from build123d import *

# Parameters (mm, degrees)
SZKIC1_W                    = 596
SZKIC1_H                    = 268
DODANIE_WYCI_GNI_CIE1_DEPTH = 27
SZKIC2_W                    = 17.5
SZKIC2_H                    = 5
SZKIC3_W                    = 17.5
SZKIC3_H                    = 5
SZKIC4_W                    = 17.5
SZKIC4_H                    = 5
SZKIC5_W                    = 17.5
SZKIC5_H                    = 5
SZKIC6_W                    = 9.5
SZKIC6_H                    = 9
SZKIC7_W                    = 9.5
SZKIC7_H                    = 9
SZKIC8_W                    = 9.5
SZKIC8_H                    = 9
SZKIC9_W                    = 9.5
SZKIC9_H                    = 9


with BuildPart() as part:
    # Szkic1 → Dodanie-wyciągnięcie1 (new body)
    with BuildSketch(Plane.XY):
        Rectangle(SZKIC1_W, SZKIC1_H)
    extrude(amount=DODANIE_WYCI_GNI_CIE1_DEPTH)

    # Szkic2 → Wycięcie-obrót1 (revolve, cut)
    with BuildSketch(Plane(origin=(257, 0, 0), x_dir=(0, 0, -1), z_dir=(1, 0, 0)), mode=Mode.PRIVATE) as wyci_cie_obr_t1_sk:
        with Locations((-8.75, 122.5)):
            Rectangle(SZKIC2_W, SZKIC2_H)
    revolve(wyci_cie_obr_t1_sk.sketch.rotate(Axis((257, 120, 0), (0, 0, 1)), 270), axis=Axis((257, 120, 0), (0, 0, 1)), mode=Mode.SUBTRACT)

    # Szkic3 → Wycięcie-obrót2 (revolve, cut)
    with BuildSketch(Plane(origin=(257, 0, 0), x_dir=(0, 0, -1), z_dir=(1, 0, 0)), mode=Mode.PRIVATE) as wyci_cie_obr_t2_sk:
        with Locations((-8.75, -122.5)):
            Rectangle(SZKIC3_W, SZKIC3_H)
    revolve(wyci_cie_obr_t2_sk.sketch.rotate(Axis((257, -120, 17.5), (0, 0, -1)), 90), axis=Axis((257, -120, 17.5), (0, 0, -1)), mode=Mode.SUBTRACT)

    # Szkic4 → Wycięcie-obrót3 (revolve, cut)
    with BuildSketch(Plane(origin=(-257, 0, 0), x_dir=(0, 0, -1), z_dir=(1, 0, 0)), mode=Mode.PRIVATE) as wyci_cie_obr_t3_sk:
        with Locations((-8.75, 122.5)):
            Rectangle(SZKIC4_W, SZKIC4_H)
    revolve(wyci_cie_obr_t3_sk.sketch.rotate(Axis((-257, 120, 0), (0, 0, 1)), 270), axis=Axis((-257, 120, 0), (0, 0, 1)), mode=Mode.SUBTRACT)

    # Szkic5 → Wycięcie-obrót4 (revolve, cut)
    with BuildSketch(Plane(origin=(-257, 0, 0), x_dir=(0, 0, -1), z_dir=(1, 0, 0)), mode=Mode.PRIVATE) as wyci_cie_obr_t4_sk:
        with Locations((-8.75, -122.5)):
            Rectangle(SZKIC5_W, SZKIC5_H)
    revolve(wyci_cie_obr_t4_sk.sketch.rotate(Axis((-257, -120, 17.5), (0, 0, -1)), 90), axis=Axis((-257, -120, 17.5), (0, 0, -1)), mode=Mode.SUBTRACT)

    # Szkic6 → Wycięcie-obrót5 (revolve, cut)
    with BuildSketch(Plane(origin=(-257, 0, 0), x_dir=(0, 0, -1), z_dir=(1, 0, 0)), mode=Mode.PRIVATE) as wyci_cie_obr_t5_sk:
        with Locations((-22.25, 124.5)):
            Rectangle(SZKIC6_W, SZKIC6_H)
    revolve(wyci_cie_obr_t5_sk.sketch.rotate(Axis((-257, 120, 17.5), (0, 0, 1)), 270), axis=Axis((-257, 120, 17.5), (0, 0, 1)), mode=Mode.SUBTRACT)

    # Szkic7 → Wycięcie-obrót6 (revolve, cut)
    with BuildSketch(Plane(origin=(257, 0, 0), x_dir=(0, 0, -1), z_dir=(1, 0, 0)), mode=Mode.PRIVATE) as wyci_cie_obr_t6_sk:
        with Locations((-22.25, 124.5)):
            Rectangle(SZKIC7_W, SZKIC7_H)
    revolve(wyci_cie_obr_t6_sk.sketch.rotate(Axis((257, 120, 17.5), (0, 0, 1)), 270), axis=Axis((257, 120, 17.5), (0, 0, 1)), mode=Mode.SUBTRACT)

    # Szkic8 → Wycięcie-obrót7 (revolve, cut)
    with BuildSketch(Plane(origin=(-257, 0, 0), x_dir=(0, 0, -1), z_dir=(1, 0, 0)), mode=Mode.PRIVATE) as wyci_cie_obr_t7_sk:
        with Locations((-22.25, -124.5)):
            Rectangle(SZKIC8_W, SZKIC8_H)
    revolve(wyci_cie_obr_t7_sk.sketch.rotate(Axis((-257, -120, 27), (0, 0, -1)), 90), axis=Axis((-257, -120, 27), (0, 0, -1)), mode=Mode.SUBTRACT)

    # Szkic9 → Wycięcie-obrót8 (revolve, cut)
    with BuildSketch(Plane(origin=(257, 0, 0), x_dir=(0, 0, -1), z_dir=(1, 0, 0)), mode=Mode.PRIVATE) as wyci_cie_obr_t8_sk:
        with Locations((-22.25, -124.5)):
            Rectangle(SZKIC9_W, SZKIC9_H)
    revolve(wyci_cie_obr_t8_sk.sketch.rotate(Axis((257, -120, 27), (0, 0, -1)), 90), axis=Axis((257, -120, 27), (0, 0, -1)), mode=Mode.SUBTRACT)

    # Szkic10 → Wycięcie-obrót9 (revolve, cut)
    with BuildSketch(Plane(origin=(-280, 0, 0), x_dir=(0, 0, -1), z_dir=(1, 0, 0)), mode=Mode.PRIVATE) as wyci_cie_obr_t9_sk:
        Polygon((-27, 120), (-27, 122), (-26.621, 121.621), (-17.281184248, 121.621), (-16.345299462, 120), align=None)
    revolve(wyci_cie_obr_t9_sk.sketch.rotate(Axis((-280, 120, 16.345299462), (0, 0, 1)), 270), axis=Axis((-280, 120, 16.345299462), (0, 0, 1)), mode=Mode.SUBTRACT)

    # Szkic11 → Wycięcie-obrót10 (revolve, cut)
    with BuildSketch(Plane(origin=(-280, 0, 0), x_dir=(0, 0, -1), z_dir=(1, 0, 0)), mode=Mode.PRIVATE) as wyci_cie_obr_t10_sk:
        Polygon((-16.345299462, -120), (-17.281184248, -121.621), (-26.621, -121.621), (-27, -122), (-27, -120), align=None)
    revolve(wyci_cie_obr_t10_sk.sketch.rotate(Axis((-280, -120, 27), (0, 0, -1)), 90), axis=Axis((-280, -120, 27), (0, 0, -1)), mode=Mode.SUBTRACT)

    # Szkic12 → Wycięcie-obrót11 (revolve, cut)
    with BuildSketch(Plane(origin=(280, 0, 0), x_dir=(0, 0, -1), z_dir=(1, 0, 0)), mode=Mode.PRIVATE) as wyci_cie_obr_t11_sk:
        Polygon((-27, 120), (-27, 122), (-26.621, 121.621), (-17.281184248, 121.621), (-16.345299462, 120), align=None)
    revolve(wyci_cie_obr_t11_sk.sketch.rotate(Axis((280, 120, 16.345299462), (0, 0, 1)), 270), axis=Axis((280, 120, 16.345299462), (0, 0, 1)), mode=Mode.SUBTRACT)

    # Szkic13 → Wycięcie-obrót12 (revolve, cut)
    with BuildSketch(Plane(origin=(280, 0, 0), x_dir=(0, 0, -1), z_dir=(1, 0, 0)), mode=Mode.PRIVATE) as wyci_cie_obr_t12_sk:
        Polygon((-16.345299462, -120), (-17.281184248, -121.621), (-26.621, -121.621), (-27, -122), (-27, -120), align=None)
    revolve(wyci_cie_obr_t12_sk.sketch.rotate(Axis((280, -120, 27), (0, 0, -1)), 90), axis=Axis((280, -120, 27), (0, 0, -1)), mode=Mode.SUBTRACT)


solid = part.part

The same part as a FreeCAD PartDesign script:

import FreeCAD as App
import Part
import Sketcher

V = App.Vector
Q = App.Units.Quantity


def add_polygon(sketch, points):
    """Adds a closed chain of lines whose ends are joined by coincident constraints."""
    first, n = sketch.GeometryCount, len(points)
    for a, b in zip(points, points[1:] + points[:1]):
        sketch.addGeometry(Part.LineSegment(App.Vector(*a, 0), App.Vector(*b, 0)), False)
    for i in range(n):
        sketch.addConstraint(Sketcher.Constraint("Coincident", first + i, 2, first + (i + 1) % n, 1))

doc = App.newDocument("Part")
body = doc.addObject("PartDesign::Body", "Body")

# Sketch on XY plane
sketch1 = doc.addObject("Sketcher::SketchObject", "Sketch")
body.addObject(sketch1)
sketch1.AttachmentSupport = (doc.XY_Plane, [""])
sketch1.MapMode = "FlatFace"
add_polygon(sketch1, [(-298, 134), (-298, -134), (298, -134), (298, 134)])  # lines 0-3
sketch1.addConstraint(Sketcher.Constraint("Vertical", 0))
sketch1.addConstraint(Sketcher.Constraint("Horizontal", 1))
sketch1.addConstraint(Sketcher.Constraint("Vertical", 2))
sketch1.addConstraint(Sketcher.Constraint("Horizontal", 3))
sketch1.addConstraint(Sketcher.Constraint("Symmetric", 0, 2, 2, 2, -1, 1))
sketch1.addConstraint(Sketcher.Constraint("DistanceX", 1, 1, 1, 2, Q("596 mm")))
sketch1.addConstraint(Sketcher.Constraint("DistanceY", 0, 2, 0, 1, Q("268 mm")))
pad1 = doc.addObject("PartDesign::Pad", "Pad")
body.addObject(pad1)
pad1.Profile = sketch1
pad1.Length = 27

# Sketch on YZ plane
sketch2 = doc.addObject("Sketcher::SketchObject", "Sketch001")
body.addObject(sketch2)
sketch2.AttachmentSupport = (doc.YZ_Plane, [""])
sketch2.MapMode = "FlatFace"
sketch2.AttachmentOffset = App.Placement(V(0, 0, 257), App.Rotation())
add_polygon(sketch2, [(125, 18), (120, 18), (120, 0), (125, 0)])  # lines 0-3
sketch2.addGeometry(Part.LineSegment(V(120, 0, 0), V(120, 18, 0)), True)  # axis
sketch2.addConstraint(Sketcher.Constraint("Horizontal", 0))
sketch2.addConstraint(Sketcher.Constraint("Vertical", 1))
sketch2.addConstraint(Sketcher.Constraint("Horizontal", 2))
sketch2.addConstraint(Sketcher.Constraint("Vertical", 3))
sketch2.addConstraint(Sketcher.Constraint("Vertical", 4))
sketch2.addConstraint(Sketcher.Constraint("Coincident", 4, 1, 1, 2))
sketch2.addConstraint(Sketcher.Constraint("PointOnObject", 1, 2, -1))
sketch2.addConstraint(Sketcher.Constraint("Horizontal", 3, 2, 4, 2))
sketch2.addConstraint(Sketcher.Constraint("DistanceX", 0, 2, 0, 1, Q("5 mm")))
sketch2.addConstraint(Sketcher.Constraint("DistanceY", 1, 2, 1, 1, Q("17.5 mm")))
sketch2.addConstraint(Sketcher.Constraint("DistanceX", -1, 1, 0, 2, Q("120 mm")))
groove = doc.addObject("PartDesign::Groove", "Groove")
body.addObject(groove)
groove.Profile = sketch2
groove.ReferenceAxis = (sketch2, ["Axis0"])
groove.Angle = 360

# Sketch on YZ plane
sketch3 = doc.addObject("Sketcher::SketchObject", "Sketch002")
body.addObject(sketch3)
sketch3.AttachmentSupport = (doc.YZ_Plane, [""])
sketch3.MapMode = "FlatFace"
sketch3.AttachmentOffset = App.Placement(V(0, 0, 257), App.Rotation())
add_polygon(sketch3, [(-120, 18), (-125, 18), (-125, 0), (-120, 0)])  # lines 0-3
sketch3.addGeometry(Part.LineSegment(V(-120, 18, 0), V(-120, 0, 0)), True)  # axis
sketch3.addConstraint(Sketcher.Constraint("Horizontal", 0))
sketch3.addConstraint(Sketcher.Constraint("Vertical", 1))
sketch3.addConstraint(Sketcher.Constraint("Horizontal", 2))
sketch3.addConstraint(Sketcher.Constraint("Vertical", 3))
sketch3.addConstraint(Sketcher.Constraint("Vertical", 4))
sketch3.addConstraint(Sketcher.Constraint("Coincident", 4, 1, 3, 2))
sketch3.addConstraint(Sketcher.Constraint("PointOnObject", 1, 2, -1))
sketch3.addConstraint(Sketcher.Constraint("PointOnObject", 4, 2, -1))
sketch3.addConstraint(Sketcher.Constraint("DistanceX", 0, 2, 0, 1, Q("5 mm")))
sketch3.addConstraint(Sketcher.Constraint("DistanceY", 1, 2, 1, 1, Q("17.5 mm")))
sketch3.addConstraint(Sketcher.Constraint("DistanceX", 0, 2, -1, 1, Q("125 mm")))
groove2 = doc.addObject("PartDesign::Groove", "Groove001")
body.addObject(groove2)
groove2.Profile = sketch3
groove2.ReferenceAxis = (sketch3, ["Axis0"])
groove2.Angle = 360

# Sketch on YZ plane
sketch4 = doc.addObject("Sketcher::SketchObject", "Sketch003")
body.addObject(sketch4)
sketch4.AttachmentSupport = (doc.YZ_Plane, [""])
sketch4.MapMode = "FlatFace"
sketch4.AttachmentOffset = App.Placement(V(0, 0, -257), App.Rotation())
add_polygon(sketch4, [(125, 18), (120, 18), (120, 0), (125, 0)])  # lines 0-3
sketch4.addGeometry(Part.LineSegment(V(120, 0, 0), V(120, 18, 0)), True)  # axis
sketch4.addConstraint(Sketcher.Constraint("Horizontal", 0))
sketch4.addConstraint(Sketcher.Constraint("Vertical", 1))
sketch4.addConstraint(Sketcher.Constraint("Horizontal", 2))
sketch4.addConstraint(Sketcher.Constraint("Vertical", 3))
sketch4.addConstraint(Sketcher.Constraint("Vertical", 4))
sketch4.addConstraint(Sketcher.Constraint("Coincident", 4, 1, 1, 2))
sketch4.addConstraint(Sketcher.Constraint("PointOnObject", 1, 2, -1))
sketch4.addConstraint(Sketcher.Constraint("Horizontal", 3, 2, 4, 2))
sketch4.addConstraint(Sketcher.Constraint("DistanceX", 0, 2, 0, 1, Q("5 mm")))
sketch4.addConstraint(Sketcher.Constraint("DistanceY", 1, 2, 1, 1, Q("17.5 mm")))
sketch4.addConstraint(Sketcher.Constraint("DistanceX", -1, 1, 0, 2, Q("120 mm")))
groove3 = doc.addObject("PartDesign::Groove", "Groove002")
body.addObject(groove3)
groove3.Profile = sketch4
groove3.ReferenceAxis = (sketch4, ["Axis0"])
groove3.Angle = 360

# Sketch on YZ plane
sketch5 = doc.addObject("Sketcher::SketchObject", "Sketch004")
body.addObject(sketch5)
sketch5.AttachmentSupport = (doc.YZ_Plane, [""])
sketch5.MapMode = "FlatFace"
sketch5.AttachmentOffset = App.Placement(V(0, 0, -257), App.Rotation())
add_polygon(sketch5, [(-120, 18), (-125, 18), (-125, 0), (-120, 0)])  # lines 0-3
sketch5.addGeometry(Part.LineSegment(V(-120, 18, 0), V(-120, 0, 0)), True)  # axis
sketch5.addConstraint(Sketcher.Constraint("Horizontal", 0))
sketch5.addConstraint(Sketcher.Constraint("Vertical", 1))
sketch5.addConstraint(Sketcher.Constraint("Horizontal", 2))
sketch5.addConstraint(Sketcher.Constraint("Vertical", 3))
sketch5.addConstraint(Sketcher.Constraint("Vertical", 4))
sketch5.addConstraint(Sketcher.Constraint("Coincident", 4, 1, 3, 2))
sketch5.addConstraint(Sketcher.Constraint("PointOnObject", 1, 2, -1))
sketch5.addConstraint(Sketcher.Constraint("PointOnObject", 4, 2, -1))
sketch5.addConstraint(Sketcher.Constraint("DistanceX", 0, 2, 0, 1, Q("5 mm")))
sketch5.addConstraint(Sketcher.Constraint("DistanceY", 1, 2, 1, 1, Q("17.5 mm")))
sketch5.addConstraint(Sketcher.Constraint("DistanceX", 0, 2, -1, 1, Q("125 mm")))
groove4 = doc.addObject("PartDesign::Groove", "Groove003")
body.addObject(groove4)
groove4.Profile = sketch5
groove4.ReferenceAxis = (sketch5, ["Axis0"])
groove4.Angle = 360

# Sketch on YZ plane
sketch6 = doc.addObject("Sketcher::SketchObject", "Sketch005")
body.addObject(sketch6)
sketch6.AttachmentSupport = (doc.YZ_Plane, [""])
sketch6.MapMode = "FlatFace"
sketch6.AttachmentOffset = App.Placement(V(0, 0, -257), App.Rotation())
add_polygon(sketch6, [(129, 27), (120, 27), (120, 18), (129, 18)])  # lines 0-3
sketch6.addGeometry(Part.LineSegment(V(120, 18, 0), V(120, 27, 0)), True)  # axis
sketch6.addConstraint(Sketcher.Constraint("Horizontal", 0))
sketch6.addConstraint(Sketcher.Constraint("Vertical", 1))
sketch6.addConstraint(Sketcher.Constraint("Horizontal", 2))
sketch6.addConstraint(Sketcher.Constraint("Vertical", 3))
sketch6.addConstraint(Sketcher.Constraint("Vertical", 4))
sketch6.addConstraint(Sketcher.Constraint("Coincident", 4, 1, 1, 2))
sketch6.addConstraint(Sketcher.Constraint("Horizontal", 3, 2, 4, 2))
sketch6.addConstraint(Sketcher.Constraint("DistanceX", 0, 2, 0, 1, Q("9 mm")))
sketch6.addConstraint(Sketcher.Constraint("DistanceY", 1, 2, 1, 1, Q("9.5 mm")))
sketch6.addConstraint(Sketcher.Constraint("DistanceX", -1, 1, 0, 2, Q("120 mm")))
sketch6.addConstraint(Sketcher.Constraint("DistanceY", -1, 1, 0, 2, Q("27 mm")))
groove5 = doc.addObject("PartDesign::Groove", "Groove004")
body.addObject(groove5)
groove5.Profile = sketch6
groove5.ReferenceAxis = (sketch6, ["Axis0"])
groove5.Angle = 360

# Sketch on YZ plane
sketch7 = doc.addObject("Sketcher::SketchObject", "Sketch006")
body.addObject(sketch7)
sketch7.AttachmentSupport = (doc.YZ_Plane, [""])
sketch7.MapMode = "FlatFace"
sketch7.AttachmentOffset = App.Placement(V(0, 0, 257), App.Rotation())
add_polygon(sketch7, [(129, 27), (120, 27), (120, 18), (129, 18)])  # lines 0-3
sketch7.addGeometry(Part.LineSegment(V(120, 18, 0), V(120, 27, 0)), True)  # axis
sketch7.addConstraint(Sketcher.Constraint("Horizontal", 0))
sketch7.addConstraint(Sketcher.Constraint("Vertical", 1))
sketch7.addConstraint(Sketcher.Constraint("Horizontal", 2))
sketch7.addConstraint(Sketcher.Constraint("Vertical", 3))
sketch7.addConstraint(Sketcher.Constraint("Vertical", 4))
sketch7.addConstraint(Sketcher.Constraint("Coincident", 4, 1, 1, 2))
sketch7.addConstraint(Sketcher.Constraint("Horizontal", 3, 2, 4, 2))
sketch7.addConstraint(Sketcher.Constraint("DistanceX", 0, 2, 0, 1, Q("9 mm")))
sketch7.addConstraint(Sketcher.Constraint("DistanceY", 1, 2, 1, 1, Q("9.5 mm")))
sketch7.addConstraint(Sketcher.Constraint("DistanceX", -1, 1, 0, 2, Q("120 mm")))
sketch7.addConstraint(Sketcher.Constraint("DistanceY", -1, 1, 0, 2, Q("27 mm")))
groove6 = doc.addObject("PartDesign::Groove", "Groove005")
body.addObject(groove6)
groove6.Profile = sketch7
groove6.ReferenceAxis = (sketch7, ["Axis0"])
groove6.Angle = 360

# Sketch on YZ plane
sketch8 = doc.addObject("Sketcher::SketchObject", "Sketch007")
body.addObject(sketch8)
sketch8.AttachmentSupport = (doc.YZ_Plane, [""])
sketch8.MapMode = "FlatFace"
sketch8.AttachmentOffset = App.Placement(V(0, 0, -257), App.Rotation())
add_polygon(sketch8, [(-120, 27), (-129, 27), (-129, 18), (-120, 18)])  # lines 0-3
sketch8.addGeometry(Part.LineSegment(V(-120, 27, 0), V(-120, 18, 0)), True)  # axis
sketch8.addConstraint(Sketcher.Constraint("Horizontal", 0))
sketch8.addConstraint(Sketcher.Constraint("Vertical", 1))
sketch8.addConstraint(Sketcher.Constraint("Horizontal", 2))
sketch8.addConstraint(Sketcher.Constraint("Vertical", 3))
sketch8.addConstraint(Sketcher.Constraint("Vertical", 4))
sketch8.addConstraint(Sketcher.Constraint("Coincident", 4, 1, 3, 2))
sketch8.addConstraint(Sketcher.Constraint("Horizontal", 1, 2, 4, 2))
sketch8.addConstraint(Sketcher.Constraint("DistanceX", 0, 2, 0, 1, Q("9 mm")))
sketch8.addConstraint(Sketcher.Constraint("DistanceY", 1, 2, 1, 1, Q("9.5 mm")))
sketch8.addConstraint(Sketcher.Constraint("DistanceX", 0, 2, -1, 1, Q("129 mm")))
sketch8.addConstraint(Sketcher.Constraint("DistanceY", -1, 1, 0, 2, Q("27 mm")))
groove7 = doc.addObject("PartDesign::Groove", "Groove006")
body.addObject(groove7)
groove7.Profile = sketch8
groove7.ReferenceAxis = (sketch8, ["Axis0"])
groove7.Angle = 360

# Sketch on YZ plane
sketch9 = doc.addObject("Sketcher::SketchObject", "Sketch008")
body.addObject(sketch9)
sketch9.AttachmentSupport = (doc.YZ_Plane, [""])
sketch9.MapMode = "FlatFace"
sketch9.AttachmentOffset = App.Placement(V(0, 0, 257), App.Rotation())
add_polygon(sketch9, [(-120, 27), (-129, 27), (-129, 18), (-120, 18)])  # lines 0-3
sketch9.addGeometry(Part.LineSegment(V(-120, 27, 0), V(-120, 18, 0)), True)  # axis
sketch9.addConstraint(Sketcher.Constraint("Horizontal", 0))
sketch9.addConstraint(Sketcher.Constraint("Vertical", 1))
sketch9.addConstraint(Sketcher.Constraint("Horizontal", 2))
sketch9.addConstraint(Sketcher.Constraint("Vertical", 3))
sketch9.addConstraint(Sketcher.Constraint("Vertical", 4))
sketch9.addConstraint(Sketcher.Constraint("Coincident", 4, 1, 3, 2))
sketch9.addConstraint(Sketcher.Constraint("Horizontal", 1, 2, 4, 2))
sketch9.addConstraint(Sketcher.Constraint("DistanceX", 0, 2, 0, 1, Q("9 mm")))
sketch9.addConstraint(Sketcher.Constraint("DistanceY", 1, 2, 1, 1, Q("9.5 mm")))
sketch9.addConstraint(Sketcher.Constraint("DistanceX", 0, 2, -1, 1, Q("129 mm")))
sketch9.addConstraint(Sketcher.Constraint("DistanceY", -1, 1, 0, 2, Q("27 mm")))
groove8 = doc.addObject("PartDesign::Groove", "Groove007")
body.addObject(groove8)
groove8.Profile = sketch9
groove8.ReferenceAxis = (sketch9, ["Axis0"])
groove8.Angle = 360

# Sketch on YZ plane
sketch10 = doc.addObject("Sketcher::SketchObject", "Sketch009")
body.addObject(sketch10)
sketch10.AttachmentSupport = (doc.YZ_Plane, [""])
sketch10.MapMode = "FlatFace"
sketch10.AttachmentOffset = App.Placement(V(0, 0, -280), App.Rotation())
add_polygon(sketch10, [(122, 27), (120, 27), (120, 16.3), (121.6, 17.3), (121.6, 26.6)])  # lines 0-4
sketch10.addGeometry(Part.LineSegment(V(120, 16.3, 0), V(120, 27, 0)), True)  # axis
sketch10.addConstraint(Sketcher.Constraint("Horizontal", 0))
sketch10.addConstraint(Sketcher.Constraint("Vertical", 1))
sketch10.addConstraint(Sketcher.Constraint("Vertical", 3))
sketch10.addConstraint(Sketcher.Constraint("Vertical", 5))
sketch10.addConstraint(Sketcher.Constraint("Coincident", 5, 1, 1, 2))
sketch10.addConstraint(Sketcher.Constraint("Horizontal", 4, 2, 5, 2))
sketch10.addConstraint(Sketcher.Constraint("DistanceX", 0, 2, 0, 1, Q("2 mm")))
sketch10.addConstraint(Sketcher.Constraint("Angle", 2, Q("30 deg")))
sketch10.addConstraint(Sketcher.Constraint("Angle", 4, Q("45 deg")))
sketch10.addConstraint(Sketcher.Constraint("DistanceX", -1, 1, 0, 2, Q("120 mm")))
sketch10.addConstraint(Sketcher.Constraint("DistanceY", -1, 1, 0, 2, Q("27 mm")))
sketch10.addConstraint(Sketcher.Constraint("DistanceY", 1, 2, 1, 1, Q("10.654701 mm")))
sketch10.addConstraint(Sketcher.Constraint("DistanceX", -1, 1, 2, 2, Q("121.621 mm")))
groove9 = doc.addObject("PartDesign::Groove", "Groove008")
body.addObject(groove9)
groove9.Profile = sketch10
groove9.ReferenceAxis = (sketch10, ["Axis0"])
groove9.Angle = 360

# Sketch on YZ plane
sketch11 = doc.addObject("Sketcher::SketchObject", "Sketch010")
body.addObject(sketch11)
sketch11.AttachmentSupport = (doc.YZ_Plane, [""])
sketch11.MapMode = "FlatFace"
sketch11.AttachmentOffset = App.Placement(V(0, 0, -280), App.Rotation())
add_polygon(sketch11, [(-121.6, 17.3), (-120, 16.3), (-120, 27), (-122, 27), (-121.6, 26.6)])  # lines 0-4
sketch11.addGeometry(Part.LineSegment(V(-120, 27, 0), V(-120, 16.3, 0)), True)  # axis
sketch11.addConstraint(Sketcher.Constraint("Vertical", 1))
sketch11.addConstraint(Sketcher.Constraint("Horizontal", 2))
sketch11.addConstraint(Sketcher.Constraint("Vertical", 4))
sketch11.addConstraint(Sketcher.Constraint("Vertical", 5))
sketch11.addConstraint(Sketcher.Constraint("Coincident", 5, 1, 1, 2))
sketch11.addConstraint(Sketcher.Constraint("Equal", 1, 5))
sketch11.addConstraint(Sketcher.Constraint("DistanceX", 2, 2, 2, 1, Q("2 mm")))
sketch11.addConstraint(Sketcher.Constraint("Angle", 0, Q("-30 deg")))
sketch11.addConstraint(Sketcher.Constraint("Angle", 3, Q("-45 deg")))
sketch11.addConstraint(Sketcher.Constraint("DistanceX", 0, 2, -1, 1, Q("120 mm")))
sketch11.addConstraint(Sketcher.Constraint("DistanceY", -1, 1, 1, 2, Q("27 mm")))
sketch11.addConstraint(Sketcher.Constraint("DistanceY", 1, 1, 1, 2, Q("10.654701 mm")))
sketch11.addConstraint(Sketcher.Constraint("DistanceX", 3, 2, -1, 1, Q("121.621 mm")))
groove10 = doc.addObject("PartDesign::Groove", "Groove009")
body.addObject(groove10)
groove10.Profile = sketch11
groove10.ReferenceAxis = (sketch11, ["Axis0"])
groove10.Angle = 360

# Sketch on YZ plane
sketch12 = doc.addObject("Sketcher::SketchObject", "Sketch011")
body.addObject(sketch12)
sketch12.AttachmentSupport = (doc.YZ_Plane, [""])
sketch12.MapMode = "FlatFace"
sketch12.AttachmentOffset = App.Placement(V(0, 0, 280), App.Rotation())
add_polygon(sketch12, [(122, 27), (120, 27), (120, 16.3), (121.6, 17.3), (121.6, 26.6)])  # lines 0-4
sketch12.addGeometry(Part.LineSegment(V(120, 16.3, 0), V(120, 27, 0)), True)  # axis
sketch12.addConstraint(Sketcher.Constraint("Horizontal", 0))
sketch12.addConstraint(Sketcher.Constraint("Vertical", 1))
sketch12.addConstraint(Sketcher.Constraint("Vertical", 3))
sketch12.addConstraint(Sketcher.Constraint("Vertical", 5))
sketch12.addConstraint(Sketcher.Constraint("Coincident", 5, 1, 1, 2))
sketch12.addConstraint(Sketcher.Constraint("Horizontal", 4, 2, 5, 2))
sketch12.addConstraint(Sketcher.Constraint("DistanceX", 0, 2, 0, 1, Q("2 mm")))
sketch12.addConstraint(Sketcher.Constraint("Angle", 2, Q("30 deg")))
sketch12.addConstraint(Sketcher.Constraint("Angle", 4, Q("45 deg")))
sketch12.addConstraint(Sketcher.Constraint("DistanceX", -1, 1, 0, 2, Q("120 mm")))
sketch12.addConstraint(Sketcher.Constraint("DistanceY", -1, 1, 0, 2, Q("27 mm")))
sketch12.addConstraint(Sketcher.Constraint("DistanceY", 1, 2, 1, 1, Q("10.654701 mm")))
sketch12.addConstraint(Sketcher.Constraint("DistanceX", -1, 1, 2, 2, Q("121.621 mm")))
groove11 = doc.addObject("PartDesign::Groove", "Groove010")
body.addObject(groove11)
groove11.Profile = sketch12
groove11.ReferenceAxis = (sketch12, ["Axis0"])
groove11.Angle = 360

# Sketch on YZ plane
sketch13 = doc.addObject("Sketcher::SketchObject", "Sketch012")
body.addObject(sketch13)
sketch13.AttachmentSupport = (doc.YZ_Plane, [""])
sketch13.MapMode = "FlatFace"
sketch13.AttachmentOffset = App.Placement(V(0, 0, 280), App.Rotation())
add_polygon(sketch13, [(-121.6, 17.3), (-120, 16.3), (-120, 27), (-122, 27), (-121.6, 26.6)])  # lines 0-4
sketch13.addGeometry(Part.LineSegment(V(-120, 27, 0), V(-120, 16.3, 0)), True)  # axis
sketch13.addConstraint(Sketcher.Constraint("Vertical", 1))
sketch13.addConstraint(Sketcher.Constraint("Horizontal", 2))
sketch13.addConstraint(Sketcher.Constraint("Vertical", 4))
sketch13.addConstraint(Sketcher.Constraint("Vertical", 5))
sketch13.addConstraint(Sketcher.Constraint("Coincident", 5, 1, 1, 2))
sketch13.addConstraint(Sketcher.Constraint("Equal", 1, 5))
sketch13.addConstraint(Sketcher.Constraint("DistanceX", 2, 2, 2, 1, Q("2 mm")))
sketch13.addConstraint(Sketcher.Constraint("Angle", 0, Q("-30 deg")))
sketch13.addConstraint(Sketcher.Constraint("Angle", 3, Q("-45 deg")))
sketch13.addConstraint(Sketcher.Constraint("DistanceX", 0, 2, -1, 1, Q("120 mm")))
sketch13.addConstraint(Sketcher.Constraint("DistanceY", -1, 1, 1, 2, Q("27 mm")))
sketch13.addConstraint(Sketcher.Constraint("DistanceY", 1, 1, 1, 2, Q("10.654701 mm")))
sketch13.addConstraint(Sketcher.Constraint("DistanceX", 3, 2, -1, 1, Q("121.621 mm")))
groove12 = doc.addObject("PartDesign::Groove", "Groove011")
body.addObject(groove12)
groove12.Profile = sketch13
groove12.ReferenceAxis = (sketch13, ["Axis0"])
groove12.Angle = 360

doc.recompute()
